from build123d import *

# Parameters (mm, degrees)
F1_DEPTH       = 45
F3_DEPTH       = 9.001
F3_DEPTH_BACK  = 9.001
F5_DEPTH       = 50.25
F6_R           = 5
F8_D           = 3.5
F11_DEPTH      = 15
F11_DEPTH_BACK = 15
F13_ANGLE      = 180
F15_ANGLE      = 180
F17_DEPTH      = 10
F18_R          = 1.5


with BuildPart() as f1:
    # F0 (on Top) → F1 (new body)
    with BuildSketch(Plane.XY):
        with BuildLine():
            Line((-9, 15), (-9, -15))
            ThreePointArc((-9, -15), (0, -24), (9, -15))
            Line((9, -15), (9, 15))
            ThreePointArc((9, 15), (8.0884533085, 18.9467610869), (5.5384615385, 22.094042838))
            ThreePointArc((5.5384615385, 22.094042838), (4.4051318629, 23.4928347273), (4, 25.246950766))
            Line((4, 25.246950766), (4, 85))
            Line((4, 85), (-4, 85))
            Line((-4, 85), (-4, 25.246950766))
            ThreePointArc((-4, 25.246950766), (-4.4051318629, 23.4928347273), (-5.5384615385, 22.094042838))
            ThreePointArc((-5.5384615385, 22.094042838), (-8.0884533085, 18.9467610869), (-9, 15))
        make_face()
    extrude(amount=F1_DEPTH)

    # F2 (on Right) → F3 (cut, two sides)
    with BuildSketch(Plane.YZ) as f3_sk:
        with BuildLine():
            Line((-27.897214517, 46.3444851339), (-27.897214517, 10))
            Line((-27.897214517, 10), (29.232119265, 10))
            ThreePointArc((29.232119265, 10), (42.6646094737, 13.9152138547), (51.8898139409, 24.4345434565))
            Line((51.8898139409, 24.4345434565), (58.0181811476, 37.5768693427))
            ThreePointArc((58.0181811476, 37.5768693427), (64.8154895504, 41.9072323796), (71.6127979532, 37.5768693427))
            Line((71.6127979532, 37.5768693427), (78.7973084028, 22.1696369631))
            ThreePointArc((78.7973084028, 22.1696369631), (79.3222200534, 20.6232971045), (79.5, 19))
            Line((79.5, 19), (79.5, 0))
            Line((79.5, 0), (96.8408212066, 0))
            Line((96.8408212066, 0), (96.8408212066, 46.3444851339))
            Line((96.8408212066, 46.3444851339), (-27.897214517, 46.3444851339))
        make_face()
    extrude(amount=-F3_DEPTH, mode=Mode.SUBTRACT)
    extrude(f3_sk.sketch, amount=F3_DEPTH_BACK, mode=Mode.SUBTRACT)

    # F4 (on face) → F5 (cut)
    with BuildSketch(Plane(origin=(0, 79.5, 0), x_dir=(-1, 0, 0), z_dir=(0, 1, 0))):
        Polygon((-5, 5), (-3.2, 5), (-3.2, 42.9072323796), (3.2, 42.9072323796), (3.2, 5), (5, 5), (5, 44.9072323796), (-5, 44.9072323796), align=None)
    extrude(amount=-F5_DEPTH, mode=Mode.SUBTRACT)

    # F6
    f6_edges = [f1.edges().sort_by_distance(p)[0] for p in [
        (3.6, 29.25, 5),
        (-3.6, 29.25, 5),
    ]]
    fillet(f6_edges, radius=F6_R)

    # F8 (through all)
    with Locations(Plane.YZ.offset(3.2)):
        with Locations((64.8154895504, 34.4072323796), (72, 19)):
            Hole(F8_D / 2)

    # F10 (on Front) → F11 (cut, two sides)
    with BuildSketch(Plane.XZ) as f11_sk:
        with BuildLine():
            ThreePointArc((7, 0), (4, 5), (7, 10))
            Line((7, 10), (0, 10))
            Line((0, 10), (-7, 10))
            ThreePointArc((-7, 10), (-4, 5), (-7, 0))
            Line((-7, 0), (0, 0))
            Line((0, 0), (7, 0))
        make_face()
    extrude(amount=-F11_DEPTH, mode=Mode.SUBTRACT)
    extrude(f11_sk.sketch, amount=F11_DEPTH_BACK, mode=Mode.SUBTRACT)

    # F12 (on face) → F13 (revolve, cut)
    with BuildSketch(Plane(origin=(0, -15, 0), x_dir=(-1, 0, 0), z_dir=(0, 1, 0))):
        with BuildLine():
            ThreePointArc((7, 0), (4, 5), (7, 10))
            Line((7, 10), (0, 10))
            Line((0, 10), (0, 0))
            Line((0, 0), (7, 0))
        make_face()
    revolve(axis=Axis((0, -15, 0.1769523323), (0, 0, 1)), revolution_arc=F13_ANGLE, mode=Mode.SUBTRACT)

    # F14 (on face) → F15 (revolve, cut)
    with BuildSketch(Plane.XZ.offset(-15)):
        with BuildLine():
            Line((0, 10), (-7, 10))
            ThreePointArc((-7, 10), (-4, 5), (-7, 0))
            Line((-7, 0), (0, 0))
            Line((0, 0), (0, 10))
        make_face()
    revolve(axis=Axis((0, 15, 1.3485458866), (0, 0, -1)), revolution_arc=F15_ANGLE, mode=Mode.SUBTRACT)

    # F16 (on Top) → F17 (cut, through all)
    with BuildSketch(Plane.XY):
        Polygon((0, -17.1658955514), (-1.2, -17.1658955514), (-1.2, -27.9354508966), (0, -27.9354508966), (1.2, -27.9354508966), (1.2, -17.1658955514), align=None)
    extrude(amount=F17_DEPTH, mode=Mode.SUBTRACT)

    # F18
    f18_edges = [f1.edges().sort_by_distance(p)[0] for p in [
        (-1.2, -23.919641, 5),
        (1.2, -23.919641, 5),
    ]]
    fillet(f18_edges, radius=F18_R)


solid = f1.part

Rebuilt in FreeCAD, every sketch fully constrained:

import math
import FreeCAD as App
import Part
import Sketcher
Q = App.Units.Quantity


def edges_at(feature, points):
    """Names of the edges that pass closest to the given points."""
    edges = feature.Shape.Edges
    near = lambda p: min(range(len(edges)), key=lambda i: edges[i].distToShape(Part.Vertex(*p))[0])
    return sorted({f"Edge{near(p) + 1}" for p in points})


def add_polygon(sketch, points):
    """Adds a closed chain of lines whose ends are joined by coincident constraints."""
    first, n = sketch.GeometryCount, len(points)
    for a, b in zip(points, points[1:] + points[:1]):
        sketch.addGeometry(Part.LineSegment(App.Vector(*a, 0), App.Vector(*b, 0)), False)
    for i in range(n):
        sketch.addConstraint(Sketcher.Constraint("Coincident", first + i, 2, first + (i + 1) % n, 1))

doc = App.newDocument("Part")
body = doc.addObject("PartDesign::Body", "Body")

# Sketch on XY plane
sketch1 = body.newObject("Sketcher::SketchObject", "Sketch")
sketch1.AttachmentSupport = (doc.getObject("XY_Plane"), [""])
sketch1.MapMode = "FlatFace"
sketch1.addGeometry([
    Part.LineSegment(App.Vector(-9, 15, 0), App.Vector(-9, -15, 0)),  # 0
    Part.ArcOfCircle(Part.Circle(App.Vector(0, -15, 0), App.Vector(0, 0, 1), 9), math.radians(180), math.radians(360)),  # 1
    Part.LineSegment(App.Vector(9, -15, 0), App.Vector(9, 15, 0)),  # 2
    Part.ArcOfCircle(Part.Circle(App.Vector(0, 15, 0), App.Vector(0, 0, 1), 9), math.radians(0), math.radians(52)),  # 3
    Part.ArcOfCircle(Part.Circle(App.Vector(8, 25.2, 0), App.Vector(0, 0, 1), 4), math.radians(180), math.radians(232)),  # 4
    Part.LineSegment(App.Vector(4, 25.2, 0), App.Vector(4, 85, 0)),  # 5
    Part.LineSegment(App.Vector(4, 85, 0), App.Vector(-4, 85, 0)),  # 6
    Part.LineSegment(App.Vector(-4, 85, 0), App.Vector(-4, 25.2, 0)),  # 7
    Part.ArcOfCircle(Part.Circle(App.Vector(-8, 25.2, 0), App.Vector(0, 0, 1), 4), math.radians(-52), math.radians(0)),  # 8
    Part.ArcOfCircle(Part.Circle(App.Vector(0, 15, 0), App.Vector(0, 0, 1), 9), math.radians(128), math.radians(180)),  # 9
], False)
sketch1.addConstraint([
    Sketcher.Constraint("Tangent", 0, 2, 1, 1),
    Sketcher.Constraint("Tangent", 1, 2, 2, 1),
    Sketcher.Constraint("Tangent", 2, 2, 3, 1),
    Sketcher.Constraint("Tangent", 3, 2, 4, 2),
    Sketcher.Constraint("Tangent", 4, 1, 5, 1),
    Sketcher.Constraint("Coincident", 5, 2, 6, 1),
    Sketcher.Constraint("Coincident", 6, 2, 7, 1),
    Sketcher.Constraint("Tangent", 7, 2, 8, 2),
    Sketcher.Constraint("Tangent", 8, 1, 9, 1),
    Sketcher.Constraint("Tangent", 9, 2, 0, 1),
    Sketcher.Constraint("Vertical", 0),
    Sketcher.Constraint("Vertical", 2),
    Sketcher.Constraint("Vertical", 5),
    Sketcher.Constraint("Horizontal", 6),
    Sketcher.Constraint("Vertical", 7),
    Sketcher.Constraint("Coincident", 9, 3, 3, 3),
    Sketcher.Constraint("Equal", 1, 3),
    Sketcher.Constraint("Equal", 4, 8),
    Sketcher.Constraint("Symmetric", 1, 3, 3, 3, -1, 1),
    Sketcher.Constraint("Horizontal", 4, 3, 8, 3),
    Sketcher.Constraint("Radius", 1, Q("9 mm")),
    Sketcher.Constraint("Radius", 4, Q("4 mm")),
    Sketcher.Constraint("DistanceX", 6, 2, 6, 1, Q("8 mm")),
    Sketcher.Constraint("DistanceY", 0, 2, 0, 1, Q("30 mm")),
    Sketcher.Constraint("DistanceY", -1, 1, 5, 2, Q("85 mm")),
])
pad1 = body.newObject("PartDesign::Pad", "Pad")
pad1.Profile = sketch1
pad1.Length = 45

# Sketch on YZ plane
sketch2 = body.newObject("Sketcher::SketchObject", "Sketch001")
sketch2.AttachmentSupport = (doc.getObject("YZ_Plane"), [""])
sketch2.MapMode = "FlatFace"
sketch2.addGeometry([
    Part.LineSegment(App.Vector(-27.9, 46.3, 0), App.Vector(-27.9, 10, 0)),  # 0
    Part.LineSegment(App.Vector(-27.9, 10, 0), App.Vector(29.2, 10, 0)),  # 1
    Part.ArcOfCircle(Part.Circle(App.Vector(29.2, 35, 0), App.Vector(0, 0, 1), 25), math.radians(-90), math.radians(-25)),  # 2
    Part.LineSegment(App.Vector(51.9, 24.4, 0), App.Vector(58, 37.6, 0)),  # 3
    Part.ArcOfCircle(Part.Circle(App.Vector(64.8, 34.4, 0), App.Vector(0, 0, 1), 7.5), math.radians(25), math.radians(155)),  # 4
    Part.LineSegment(App.Vector(71.6, 37.6, 0), App.Vector(78.8, 22.2, 0)),  # 5
    Part.ArcOfCircle(Part.Circle(App.Vector(72, 19, 0), App.Vector(0, 0, 1), 7.5), math.radians(0), math.radians(25)),  # 6
    Part.LineSegment(App.Vector(79.5, 19, 0), App.Vector(79.5, 0, 0)),  # 7
    Part.LineSegment(App.Vector(79.5, 0, 0), App.Vector(96.8, 0, 0)),  # 8
    Part.LineSegment(App.Vector(96.8, 0, 0), App.Vector(96.8, 46.3, 0)),  # 9
    Part.LineSegment(App.Vector(96.8, 46.3, 0), App.Vector(-27.9, 46.3, 0)),  # 10
], False)
sketch2.addConstraint([
    Sketcher.Constraint("Coincident", 0, 2, 1, 1),
    Sketcher.Constraint("Tangent", 1, 2, 2, 1),
    Sketcher.Constraint("Tangent", 2, 2, 3, 1),
    Sketcher.Constraint("Tangent", 3, 2, 4, 2),
    Sketcher.Constraint("Tangent", 4, 1, 5, 1),
    Sketcher.Constraint("Tangent", 5, 2, 6, 2),
    Sketcher.Constraint("Tangent", 6, 1, 7, 1),
    Sketcher.Constraint("Coincident", 7, 2, 8, 1),
    Sketcher.Constraint("Coincident", 8, 2, 9, 1),
    Sketcher.Constraint("Coincident", 9, 2, 10, 1),
    Sketcher.Constraint("Coincident", 10, 2, 0, 1),
    Sketcher.Constraint("Vertical", 0),
    Sketcher.Constraint("Horizontal", 1),
    Sketcher.Constraint("Vertical", 7),
    Sketcher.Constraint("Horizontal", 8),
    Sketcher.Constraint("Vertical", 9),
    Sketcher.Constraint("Horizontal", 10),
    Sketcher.Constraint("Equal", 4, 6),
    Sketcher.Constraint("PointOnObject", 7, 2, -1),
    Sketcher.Constraint("Horizontal", 3, 2, 4, 1),
    Sketcher.Constraint("Radius", 2, Q("25 mm")),
    Sketcher.Constraint("Radius", 4, Q("7.5 mm")),
    Sketcher.Constraint("DistanceY", 7, 2, 7, 1, Q("19 mm")),
    Sketcher.Constraint("Angle", 3, Q("65 deg")),
    Sketcher.Constraint("Distance", 5, Q("17 mm")),
    Sketcher.Constraint("DistanceY", -1, 1, 2, 3, Q("35 mm")),
    Sketcher.Constraint("DistanceX", -1, 1, 6, 3, Q("72 mm")),
    Sketcher.Constraint("DistanceX", 8, 1, 8, 2, Q("17.340821 mm")),
    Sketcher.Constraint("DistanceX", 1, 1, 1, 2, Q("57.129334 mm")),
    Sketcher.Constraint("DistanceY", 0, 2, 0, 1, Q("36.344485 mm")),
])
pocket1 = body.newObject("PartDesign::Pocket", "Pocket")
pocket1.Profile = sketch2
pocket1.Type = "ThroughAll"
pocket1.Midplane = True

# Sketch on XZ plane
sketch3 = body.newObject("Sketcher::SketchObject", "Sketch002")
sketch3.AttachmentSupport = (doc.getObject("XZ_Plane"), [""])
sketch3.MapMode = "FlatFace"
sketch3.AttachmentOffset = App.Placement(App.Vector(0, 0, -79.5), App.Rotation())
add_polygon(sketch3, [(5, 5), (3.2, 5), (3.2, 42.9), (-3.2, 42.9), (-3.2, 5), (-5, 5), (-5, 44.9), (5, 44.9)])  # lines 0-7
sketch3.addConstraint([
    Sketcher.Constraint("Horizontal", 0),
    Sketcher.Constraint("Vertical", 1),
    Sketcher.Constraint("Horizontal", 2),
    Sketcher.Constraint("Vertical", 3),
    Sketcher.Constraint("Horizontal", 4),
    Sketcher.Constraint("Vertical", 5),
    Sketcher.Constraint("Horizontal", 6),
    Sketcher.Constraint("Vertical", 7),
    Sketcher.Constraint("Symmetric", 0, 2, 3, 2, -2),
    Sketcher.Constraint("Equal", 0, 4),
    Sketcher.Constraint("DistanceX", 6, 1, 6, 2, Q("10 mm")),
    Sketcher.Constraint("DistanceX", 0, 2, 0, 1, Q("1.8 mm")),
    Sketcher.Constraint("DistanceY", -1, 1, 0, 2, Q("5 mm")),
    Sketcher.Constraint("DistanceY", 2, 2, 5, 2, Q("2 mm")),
    Sketcher.Constraint("DistanceY", 1, 1, 1, 2, Q("37.907232 mm")),
])
pocket2 = body.newObject("PartDesign::Pocket", "Pocket001")
pocket2.Profile = sketch3
pocket2.Length = 50.25
pocket2.Reversed = True
doc.recompute()

fillet = body.newObject("PartDesign::Fillet", "Fillet")
fillet.Base = (pocket2, edges_at(pocket2, [(3.6, 29.25, 5), (-3.6, 29.25, 5)]))
fillet.Radius = 5

# Sketch on YZ plane
sketch4 = body.newObject("Sketcher::SketchObject", "Sketch003")
sketch4.AttachmentSupport = (doc.getObject("YZ_Plane"), [""])
sketch4.MapMode = "FlatFace"
sketch4.AttachmentOffset = App.Placement(App.Vector(0, 0, 3.2), App.Rotation())
sketch4.addGeometry([
    Part.Circle(App.Vector(64.8, 34.4, 0), App.Vector(0, 0, 1), 1.8),
    Part.Circle(App.Vector(72, 19, 0), App.Vector(0, 0, 1), 1.8),
], False)
sketch4.addConstraint([
    Sketcher.Constraint("Equal", 0, 1),
    Sketcher.Constraint("Diameter", 0, Q("3.5 mm")),
    Sketcher.Constraint("DistanceX", -1, 1, 1, 3, Q("72 mm")),
    Sketcher.Constraint("DistanceY", -1, 1, 1, 3, Q("19 mm")),
    Sketcher.Constraint("DistanceX", -1, 1, 0, 3, Q("64.81549 mm")),
    Sketcher.Constraint("DistanceY", -1, 1, 0, 3, Q("34.407232 mm")),
])
doc.recompute()
hole = body.newObject("PartDesign::Hole", "Hole")
hole.Profile = sketch4
hole.ThreadType = "None"
hole.Diameter = 3.5
hole.DepthType = "ThroughAll"

# Sketch on XZ plane
sketch5 = body.newObject("Sketcher::SketchObject", "Sketch004")
sketch5.AttachmentSupport = (doc.getObject("XZ_Plane"), [""])
sketch5.MapMode = "FlatFace"
sketch5.addGeometry([
    Part.ArcOfCircle(Part.Circle(App.Vector(10, 5, 0), App.Vector(0, 0, 1), 6), math.radians(118), math.radians(242)),
    Part.LineSegment(App.Vector(7, 10, 0), App.Vector(-7, 10, 0)),
    Part.ArcOfCircle(Part.Circle(App.Vector(-10, 5, 0), App.Vector(0, 0, 1), 6), math.radians(-62), math.radians(62)),
    Part.LineSegment(App.Vector(-7, 0, 0), App.Vector(7, 0, 0)),
], False)
sketch5.addConstraint([
    Sketcher.Constraint("Coincident", 0, 1, 1, 1),
    Sketcher.Constraint("Coincident", 1, 2, 2, 2),
    Sketcher.Constraint("Coincident", 2, 1, 3, 1),
    Sketcher.Constraint("Coincident", 3, 2, 0, 2),
    Sketcher.Constraint("Horizontal", 1),
    Sketcher.Constraint("Horizontal", 3),
    Sketcher.Constraint("Equal", 0, 2),
    Sketcher.Constraint("Symmetric", 2, 1, 3, 2, -1, 1),
    Sketcher.Constraint("Horizontal", 0, 3, 2, 3),
    Sketcher.Constraint("Vertical", 1, 2, 2, 1),
    Sketcher.Constraint("DistanceX", 1, 2, 1, 1, Q("14 mm")),
    Sketcher.Constraint("DistanceY", -1, 1, 0, 3, Q("5 mm")),
    Sketcher.Constraint("Radius", 0, Q("5.666667 mm")),
])
pocket3 = body.newObject("PartDesign::Pocket", "Pocket002")
pocket3.Profile = sketch5
pocket3.Type = "TwoLengths"
pocket3.Length = 15
pocket3.Length2 = 15

# Sketch on XZ plane
sketch6 = body.newObject("Sketcher::SketchObject", "Sketch005")
sketch6.AttachmentSupport = (doc.getObject("XZ_Plane"), [""])
sketch6.MapMode = "FlatFace"
sketch6.AttachmentOffset = App.Placement(App.Vector(0, 0, 15), App.Rotation())
sketch6.addGeometry([
    Part.ArcOfCircle(Part.Circle(App.Vector(-10, 5, 0), App.Vector(0, 0, 1), 6), math.radians(-62), math.radians(62)),
    Part.LineSegment(App.Vector(-7, 10, 0), App.Vector(0, 10, 0)),
    Part.LineSegment(App.Vector(0, 10, 0), App.Vector(0, 0, 0)),
    Part.LineSegment(App.Vector(0, 0, 0), App.Vector(-7, 0, 0)),
], False)
sketch6.addConstraint([
    Sketcher.Constraint("Coincident", 0, 2, 1, 1),
    Sketcher.Constraint("Coincident", 1, 2, 2, 1),
    Sketcher.Constraint("Coincident", 2, 2, 3, 1),
    Sketcher.Constraint("Coincident", 3, 2, 0, 1),
    Sketcher.Constraint("Horizontal", 1),
    Sketcher.Constraint("Vertical", 2),
    Sketcher.Constraint("Horizontal", 3),
    Sketcher.Constraint("Coincident", 2, 2, -1, 1),
    Sketcher.Constraint("Vertical", 0, 2, 3, 2),
    Sketcher.Constraint("DistanceX", 1, 1, 1, 2, Q("7 mm")),
    Sketcher.Constraint("DistanceY", 2, 2, 2, 1, Q("10 mm")),
    Sketcher.Constraint("Radius", 0, Q("5.666667 mm")),
])
groove = body.newObject("PartDesign::Groove", "Groove")
groove.Profile = sketch6
groove.ReferenceAxis = (sketch6, ["V_Axis"])
groove.Angle = 180

# Sketch on XZ plane
sketch7 = body.newObject("Sketcher::SketchObject", "Sketch006")
sketch7.AttachmentSupport = (doc.getObject("XZ_Plane"), [""])
sketch7.MapMode = "FlatFace"
sketch7.AttachmentOffset = App.Placement(App.Vector(0, 0, -15), App.Rotation())
sketch7.addGeometry([
    Part.LineSegment(App.Vector(0, 10, 0), App.Vector(-7, 10, 0)),
    Part.ArcOfCircle(Part.Circle(App.Vector(-10, 5, 0), App.Vector(0, 0, 1), 6), math.radians(-62), math.radians(62)),
    Part.LineSegment(App.Vector(-7, 0, 0), App.Vector(0, 0, 0)),
    Part.LineSegment(App.Vector(0, 0, 0), App.Vector(0, 10, 0)),
], False)
sketch7.addConstraint([
    Sketcher.Constraint("Coincident", 0, 2, 1, 2),
    Sketcher.Constraint("Coincident", 1, 1, 2, 1),
    Sketcher.Constraint("Coincident", 2, 2, 3, 1),
    Sketcher.Constraint("Coincident", 3, 2, 0, 1),
    Sketcher.Constraint("Horizontal", 0),
    Sketcher.Constraint("Horizontal", 2),
    Sketcher.Constraint("Vertical", 3),
    Sketcher.Constraint("Coincident", 2, 2, -1, 1),
    Sketcher.Constraint("Vertical", 0, 2, 1, 1),
    Sketcher.Constraint("DistanceX", 0, 2, 0, 1, Q("7 mm")),
    Sketcher.Constraint("DistanceY", 3, 1, 3, 2, Q("10 mm")),
    Sketcher.Constraint("Radius", 1, Q("5.666667 mm")),
])
groove2 = body.newObject("PartDesign::Groove", "Groove001")
groove2.Profile = sketch7
groove2.ReferenceAxis = (sketch7, ["V_Axis"])
groove2.Angle = 180
groove2.Reversed = True

# Sketch on XY plane
sketch8 = body.newObject("Sketcher::SketchObject", "Sketch007")
sketch8.AttachmentSupport = (doc.getObject("XY_Plane"), [""])
sketch8.MapMode = "FlatFace"
add_polygon(sketch8, [(-1.2, -17.2), (-1.2, -27.9), (1.2, -27.9), (1.2, -17.2)])  # lines 0-3
sketch8.addConstraint([
    Sketcher.Constraint("Vertical", 0),
    Sketcher.Constraint("Horizontal", 1),
    Sketcher.Constraint("Vertical", 2),
    Sketcher.Constraint("Horizontal", 3),
    Sketcher.Constraint("DistanceX", 1, 1, 1, 2, Q("2.4 mm")),
    Sketcher.Constraint("DistanceX", 0, 2, -1, 1, Q("1.2 mm")),
    Sketcher.Constraint("DistanceY", 0, 2, 0, 1, Q("10.769555 mm")),
    Sketcher.Constraint("DistanceY", 0, 2, -1, 1, Q("27.935451 mm")),
])
pocket4 = body.newObject("PartDesign::Pocket", "Pocket003")
pocket4.Profile = sketch8
pocket4.Type = "ThroughAll"
pocket4.Reversed = True
doc.recompute()

fillet2 = body.newObject("PartDesign::Fillet", "Fillet001")
fillet2.Base = (pocket4, edges_at(pocket4, [(-1.2, -23.92, 5), (1.2, -23.92, 5)]))
fillet2.Radius = 1.5

doc.recompute()
